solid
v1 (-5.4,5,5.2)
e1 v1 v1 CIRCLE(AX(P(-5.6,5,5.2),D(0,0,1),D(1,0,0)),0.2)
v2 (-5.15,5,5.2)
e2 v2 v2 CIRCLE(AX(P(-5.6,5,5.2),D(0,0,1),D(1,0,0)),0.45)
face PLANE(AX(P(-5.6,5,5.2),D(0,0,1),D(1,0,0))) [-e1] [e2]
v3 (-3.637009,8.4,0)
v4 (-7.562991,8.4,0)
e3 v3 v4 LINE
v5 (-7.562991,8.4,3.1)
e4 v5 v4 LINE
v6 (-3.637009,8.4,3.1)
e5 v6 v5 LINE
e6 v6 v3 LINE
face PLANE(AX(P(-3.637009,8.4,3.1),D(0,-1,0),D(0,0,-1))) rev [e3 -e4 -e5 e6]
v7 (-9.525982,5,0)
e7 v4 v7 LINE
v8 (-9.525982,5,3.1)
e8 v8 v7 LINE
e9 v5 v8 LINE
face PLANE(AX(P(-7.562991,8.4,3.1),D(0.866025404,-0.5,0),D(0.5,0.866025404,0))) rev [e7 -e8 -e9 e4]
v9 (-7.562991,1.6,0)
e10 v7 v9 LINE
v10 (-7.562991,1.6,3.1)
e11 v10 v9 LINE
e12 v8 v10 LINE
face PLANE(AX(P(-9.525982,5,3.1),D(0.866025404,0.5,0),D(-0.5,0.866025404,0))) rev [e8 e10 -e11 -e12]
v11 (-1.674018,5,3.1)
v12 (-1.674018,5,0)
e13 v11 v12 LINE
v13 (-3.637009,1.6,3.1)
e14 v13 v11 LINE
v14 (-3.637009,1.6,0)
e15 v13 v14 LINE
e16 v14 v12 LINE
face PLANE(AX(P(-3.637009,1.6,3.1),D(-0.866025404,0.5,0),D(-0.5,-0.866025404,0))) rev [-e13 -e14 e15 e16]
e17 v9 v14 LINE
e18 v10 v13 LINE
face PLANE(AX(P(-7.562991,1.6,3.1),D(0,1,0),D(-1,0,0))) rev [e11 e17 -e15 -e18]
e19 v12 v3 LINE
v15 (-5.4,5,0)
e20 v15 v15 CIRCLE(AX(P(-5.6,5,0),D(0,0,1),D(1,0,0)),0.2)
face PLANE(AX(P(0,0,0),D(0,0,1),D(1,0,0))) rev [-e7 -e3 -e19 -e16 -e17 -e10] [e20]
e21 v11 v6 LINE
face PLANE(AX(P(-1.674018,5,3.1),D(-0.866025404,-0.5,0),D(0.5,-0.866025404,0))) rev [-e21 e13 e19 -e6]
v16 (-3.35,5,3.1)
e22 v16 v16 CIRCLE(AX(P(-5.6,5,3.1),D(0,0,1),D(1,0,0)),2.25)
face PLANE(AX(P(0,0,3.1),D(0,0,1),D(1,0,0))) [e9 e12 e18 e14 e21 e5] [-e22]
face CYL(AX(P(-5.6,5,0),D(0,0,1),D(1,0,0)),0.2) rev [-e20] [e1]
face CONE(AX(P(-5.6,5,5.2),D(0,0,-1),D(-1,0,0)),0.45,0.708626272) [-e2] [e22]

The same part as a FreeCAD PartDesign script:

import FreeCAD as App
import Part
import Sketcher

V = App.Vector
Q = App.Units.Quantity

doc = App.newDocument("Part")
body = doc.addObject("PartDesign::Body", "Body")

# Sketch on XY plane
sketch1 = body.newObject("Sketcher::SketchObject", "Sketch")
sketch1.AttachmentSupport = (doc.getObject("XY_Plane"), [""])
sketch1.MapMode = "FlatFace"
sketch1.addGeometry(Part.LineSegment(V(-3.6, 1.6, 0), V(-1.7, 5, 0)), False)
sketch1.addGeometry(Part.LineSegment(V(-1.7, 5, 0), V(-3.6, 8.4, 0)), False)
sketch1.addGeometry(Part.LineSegment(V(-3.6, 8.4, 0), V(-7.6, 8.4, 0)), False)
sketch1.addGeometry(Part.LineSegment(V(-7.6, 8.4, 0), V(-9.5, 5, 0)), False)
sketch1.addGeometry(Part.LineSegment(V(-9.5, 5, 0), V(-7.6, 1.6, 0)), False)
sketch1.addGeometry(Part.LineSegment(V(-7.6, 1.6, 0), V(-3.6, 1.6, 0)), False)
sketch1.addConstraint(Sketcher.Constraint("Coincident", 0, 2, 1, 1))
sketch1.addConstraint(Sketcher.Constraint("Coincident", 1, 2, 2, 1))
sketch1.addConstraint(Sketcher.Constraint("Coincident", 2, 2, 3, 1))
sketch1.addConstraint(Sketcher.Constraint("Coincident", 3, 2, 4, 1))
sketch1.addConstraint(Sketcher.Constraint("Coincident", 4, 2, 5, 1))
sketch1.addConstraint(Sketcher.Constraint("Coincident", 5, 2, 0, 1))
sketch1.addConstraint(Sketcher.Constraint("Horizontal", 2))
sketch1.addConstraint(Sketcher.Constraint("Horizontal", 5))
sketch1.addConstraint(Sketcher.Constraint("Parallel", 0, 3))
sketch1.addConstraint(Sketcher.Constraint("Parallel", 1, 4))
sketch1.addConstraint(Sketcher.Constraint("Horizontal", 0, 2, 3, 2))
sketch1.addConstraint(Sketcher.Constraint("Vertical", 2, 2, 4, 2))
sketch1.addConstraint(Sketcher.Constraint("Vertical", 1, 2, 5, 2))
sketch1.addConstraint(Sketcher.Constraint("Angle", 0, Q("60 deg")))
sketch1.addConstraint(Sketcher.Constraint("DistanceY", -1, 1, 0, 2, Q("5 mm")))
sketch1.addConstraint(Sketcher.Constraint("DistanceY", -1, 1, 1, 2, Q("8.4 mm")))
sketch1.addConstraint(Sketcher.Constraint("DistanceX", 2, 2, 2, 1, Q("3.925982 mm")))
sketch1.addConstraint(Sketcher.Constraint("DistanceX", 0, 2, -1, 1, Q("1.674018 mm")))
pad1 = body.newObject("PartDesign::Pad", "Pad")
pad1.Profile = sketch1
pad1.Length = 3.1

# Sketch on XY plane
sketch2 = body.newObject("Sketcher::SketchObject", "Sketch001")
sketch2.AttachmentSupport = (doc.getObject("XY_Plane"), [""])
sketch2.MapMode = "FlatFace"
sketch2.AttachmentOffset = App.Placement(V(0, 0, 3.1), App.Rotation())
sketch2.addGeometry(Part.Circle(V(-5.6, 5, 0), V(0, 0, 1), 2.2), False)
sketch2.addConstraint(Sketcher.Constraint("Diameter", 0, Q("4.5 mm")))
sketch2.addConstraint(Sketcher.Constraint("DistanceY", -1, 1, 0, 3, Q("5 mm")))
sketch2.addConstraint(Sketcher.Constraint("DistanceX", 0, 3, -1, 1, Q("5.6 mm")))

# Sketch on XY plane
sketch3 = body.newObject("Sketcher::SketchObject", "Sketch002")
sketch3.AttachmentSupport = (doc.getObject("XY_Plane"), [""])
sketch3.MapMode = "FlatFace"
sketch3.AttachmentOffset = App.Placement(V(0, 0, 5.2), App.Rotation())
sketch3.addGeometry(Part.Circle(V(-5.6, 5, 0), V(0, 0, 1), 0.45), False)
sketch3.addConstraint(Sketcher.Constraint("Diameter", 0, Q("0.9 mm")))
sketch3.addConstraint(Sketcher.Constraint("DistanceY", -1, 1, 0, 3, Q("5 mm")))
sketch3.addConstraint(Sketcher.Constraint("DistanceX", 0, 3, -1, 1, Q("5.6 mm")))

additiveloft = body.newObject("PartDesign::AdditiveLoft", "AdditiveLoft")
additiveloft.Profile = sketch2
additiveloft.Sections = [sketch3]

# Sketch on XY plane
sketch4 = body.newObject("Sketcher::SketchObject", "Sketch003")
sketch4.AttachmentSupport = (doc.getObject("XY_Plane"), [""])
sketch4.MapMode = "FlatFace"
sketch4.AttachmentOffset = App.Placement(V(0, 0, 5.2), App.Rotation())
sketch4.addGeometry(Part.Circle(V(-5.6, 5, 0), V(0, 0, 1), 0.2), False)
sketch4.addConstraint(Sketcher.Constraint("Diameter", 0, Q("0.4 mm")))
sketch4.addConstraint(Sketcher.Constraint("DistanceY", -1, 1, 0, 3, Q("5 mm")))
sketch4.addConstraint(Sketcher.Constraint("DistanceX", 0, 3, -1, 1, Q("5.6 mm")))
pocket1 = body.newObject("PartDesign::Pocket", "Pocket")
pocket1.Profile = sketch4
pocket1.Type = "ThroughAll"

doc.recompute()
